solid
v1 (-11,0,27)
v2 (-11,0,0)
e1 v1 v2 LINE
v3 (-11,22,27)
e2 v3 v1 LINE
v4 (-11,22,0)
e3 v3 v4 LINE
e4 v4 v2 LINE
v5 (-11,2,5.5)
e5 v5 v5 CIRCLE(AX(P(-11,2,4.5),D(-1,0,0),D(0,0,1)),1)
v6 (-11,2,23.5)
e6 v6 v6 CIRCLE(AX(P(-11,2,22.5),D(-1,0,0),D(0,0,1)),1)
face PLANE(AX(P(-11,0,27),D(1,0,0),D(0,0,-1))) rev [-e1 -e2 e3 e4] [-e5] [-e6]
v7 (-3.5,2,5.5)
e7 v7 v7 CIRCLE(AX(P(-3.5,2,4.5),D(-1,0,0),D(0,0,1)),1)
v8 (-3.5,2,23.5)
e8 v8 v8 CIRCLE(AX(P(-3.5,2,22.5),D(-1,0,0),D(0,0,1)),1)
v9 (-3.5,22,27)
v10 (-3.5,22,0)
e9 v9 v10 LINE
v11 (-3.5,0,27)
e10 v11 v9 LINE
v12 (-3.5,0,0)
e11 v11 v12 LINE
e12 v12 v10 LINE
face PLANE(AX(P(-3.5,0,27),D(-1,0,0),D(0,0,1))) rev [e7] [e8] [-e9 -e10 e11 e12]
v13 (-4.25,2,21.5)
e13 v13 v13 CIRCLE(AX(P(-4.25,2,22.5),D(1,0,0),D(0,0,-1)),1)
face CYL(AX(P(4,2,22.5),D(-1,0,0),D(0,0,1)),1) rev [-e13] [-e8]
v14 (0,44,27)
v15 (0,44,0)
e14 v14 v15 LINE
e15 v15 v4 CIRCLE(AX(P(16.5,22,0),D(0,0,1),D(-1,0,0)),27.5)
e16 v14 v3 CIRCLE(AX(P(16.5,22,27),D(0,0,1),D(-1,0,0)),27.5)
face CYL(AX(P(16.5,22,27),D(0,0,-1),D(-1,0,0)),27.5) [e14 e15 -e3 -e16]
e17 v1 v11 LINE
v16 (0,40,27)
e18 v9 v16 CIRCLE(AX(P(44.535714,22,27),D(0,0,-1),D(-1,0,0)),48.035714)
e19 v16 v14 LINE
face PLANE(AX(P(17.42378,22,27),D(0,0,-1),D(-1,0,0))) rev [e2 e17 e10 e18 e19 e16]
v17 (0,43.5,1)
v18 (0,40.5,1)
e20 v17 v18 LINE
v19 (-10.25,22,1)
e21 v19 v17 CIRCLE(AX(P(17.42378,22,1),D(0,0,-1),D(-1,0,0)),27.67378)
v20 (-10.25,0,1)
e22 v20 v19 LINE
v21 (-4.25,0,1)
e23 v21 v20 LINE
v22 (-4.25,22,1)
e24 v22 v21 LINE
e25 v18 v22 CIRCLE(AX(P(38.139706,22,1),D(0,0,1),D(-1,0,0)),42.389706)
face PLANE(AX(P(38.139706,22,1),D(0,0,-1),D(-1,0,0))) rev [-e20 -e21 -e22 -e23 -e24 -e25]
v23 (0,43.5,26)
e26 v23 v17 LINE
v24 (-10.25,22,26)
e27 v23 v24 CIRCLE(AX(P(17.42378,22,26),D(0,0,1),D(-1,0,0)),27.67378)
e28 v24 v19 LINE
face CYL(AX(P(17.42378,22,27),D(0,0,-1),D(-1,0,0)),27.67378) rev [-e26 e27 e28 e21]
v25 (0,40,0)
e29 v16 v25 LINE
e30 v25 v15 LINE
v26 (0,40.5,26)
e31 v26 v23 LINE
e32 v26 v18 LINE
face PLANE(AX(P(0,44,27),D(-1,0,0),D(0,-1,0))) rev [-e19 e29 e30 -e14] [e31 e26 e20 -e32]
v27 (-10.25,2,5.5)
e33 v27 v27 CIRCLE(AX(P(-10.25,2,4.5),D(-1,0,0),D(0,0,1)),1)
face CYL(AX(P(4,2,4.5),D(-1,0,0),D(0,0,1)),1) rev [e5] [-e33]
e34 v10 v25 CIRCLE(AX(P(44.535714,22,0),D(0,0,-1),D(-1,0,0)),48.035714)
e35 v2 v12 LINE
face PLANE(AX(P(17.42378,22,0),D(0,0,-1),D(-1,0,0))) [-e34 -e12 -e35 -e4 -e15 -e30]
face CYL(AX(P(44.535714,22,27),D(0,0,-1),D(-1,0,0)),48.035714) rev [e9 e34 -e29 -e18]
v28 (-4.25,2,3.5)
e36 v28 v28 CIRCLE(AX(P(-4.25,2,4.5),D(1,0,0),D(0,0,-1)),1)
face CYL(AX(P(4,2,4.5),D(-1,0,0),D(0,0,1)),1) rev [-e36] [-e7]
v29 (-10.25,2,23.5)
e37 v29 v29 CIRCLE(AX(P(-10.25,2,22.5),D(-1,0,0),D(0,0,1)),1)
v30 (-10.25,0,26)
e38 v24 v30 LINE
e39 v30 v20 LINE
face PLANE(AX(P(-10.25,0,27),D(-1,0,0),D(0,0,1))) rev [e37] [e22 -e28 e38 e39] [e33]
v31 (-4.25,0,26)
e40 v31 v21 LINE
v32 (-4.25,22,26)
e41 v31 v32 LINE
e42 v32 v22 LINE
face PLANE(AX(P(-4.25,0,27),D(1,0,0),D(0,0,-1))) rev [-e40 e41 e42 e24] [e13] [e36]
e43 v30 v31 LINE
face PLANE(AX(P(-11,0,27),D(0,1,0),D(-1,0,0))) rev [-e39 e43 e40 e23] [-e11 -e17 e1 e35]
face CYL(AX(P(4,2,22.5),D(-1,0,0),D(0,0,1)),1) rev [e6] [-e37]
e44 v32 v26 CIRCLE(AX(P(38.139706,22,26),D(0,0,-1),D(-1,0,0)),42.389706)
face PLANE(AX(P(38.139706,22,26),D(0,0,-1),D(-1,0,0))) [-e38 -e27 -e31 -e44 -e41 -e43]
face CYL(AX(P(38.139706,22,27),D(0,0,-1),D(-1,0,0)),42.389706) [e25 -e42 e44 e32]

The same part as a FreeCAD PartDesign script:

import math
import FreeCAD as App
import Part
import Sketcher

doc = App.newDocument("Part")
params = doc.addObject("Spreadsheet::Sheet", "Params")
for row, (alias, value) in enumerate([
    ("sketch1_radius", "27.5 mm"),
    ("sketch1_height", "22 mm"),
    ("sketch1_height2", "0.5 mm"),
    ("sketch1_width", "0.75 mm"),
    ("pad1_length", "27 mm"),
    ("sketch2_height", "22 mm"),
    ("sketch2_height2", "0.5 mm"),
    ("sketch2_width", "0.75 mm"),
    ("pad2_length", "27 mm"),
    ("sketch3_width", "6 mm"),
    ("sketch3_height", "22 mm"),
    ("sketch3_height2", "3 mm"),
    ("pad3_length", "1 mm"),
    ("sketch4_width", "6 mm"),
    ("sketch4_height", "22 mm"),
    ("sketch4_height2", "3 mm"),
    ("pad4_length", "1 mm"),
    ("sketch5_diameter", "2 mm"),
    ("pocket1_length", "15 mm"),
], start=1):
    params.set(f"A{row}", alias)
    params.set(f"B{row}", "=" + value)
    params.setAlias(f"B{row}", alias)

body = doc.addObject("PartDesign::Body", "Body")

sketch1 = body.newObject("Sketcher::SketchObject", "Sketch")
sketch1.AttachmentSupport = (doc.getObject("XY_Plane"), [""])
sketch1.MapMode = "FlatFace"
sketch1.addGeometry([
    Part.LineSegment(App.Vector(-11, 22, 0), App.Vector(-11, 0, 0)),
    Part.LineSegment(App.Vector(-11, 0, 0), App.Vector(-10.2, 0, 0)),
    Part.LineSegment(App.Vector(-10.2, 0, 0), App.Vector(-10.2, 22, 0)),
    Part.ArcOfCircle(Part.Circle(App.Vector(17.4, 22, 0), App.Vector(0, 0, 1), 27.7), math.radians(129), math.radians(180)),
    Part.LineSegment(App.Vector(0, 43.5, 0), App.Vector(0, 44, 0)),
    Part.ArcOfCircle(Part.Circle(App.Vector(16.5, 22, 0), App.Vector(0, 0, 1), 27.5), math.radians(127), math.radians(180)),
], False)
sketch1.addConstraint([
    Sketcher.Constraint("Coincident", 0, 2, 1, 1),
    Sketcher.Constraint("Coincident", 1, 2, 2, 1),
    Sketcher.Constraint("Tangent", 2, 2, 3, 2),
    Sketcher.Constraint("Coincident", 3, 1, 4, 1),
    Sketcher.Constraint("Coincident", 4, 2, 5, 1),
    Sketcher.Constraint("Tangent", 5, 2, 0, 1),
    Sketcher.Constraint("Vertical", 0),
    Sketcher.Constraint("Horizontal", 1),
    Sketcher.Constraint("Vertical", 2),
    Sketcher.Constraint("Vertical", 4),
    Sketcher.Constraint("PointOnObject", 0, 2, -1),
    Sketcher.Constraint("PointOnObject", 3, 1, -2),
    Sketcher.Constraint("Horizontal", 3, 3, 5, 3),
    Sketcher.Constraint("Radius", 5, 27.5),
    Sketcher.Constraint("DistanceY", 0, 2, 0, 1, 22.0),
    Sketcher.Constraint("DistanceY", 4, 1, 4, 2, 0.5),
    Sketcher.Constraint("DistanceX", 0, 2, -1, 1, 11.0),
    Sketcher.Constraint("DistanceX", 1, 1, 1, 2, 0.75),
])
sketch1.setExpression("Constraints[13]", "Params.sketch1_radius")
sketch1.setExpression("Constraints[14]", "Params.sketch1_height")
sketch1.setExpression("Constraints[15]", "Params.sketch1_height2")
sketch1.setExpression("Constraints[17]", "Params.sketch1_width")
pad1 = body.newObject("PartDesign::Pad", "Pad")
pad1.Profile = sketch1
pad1.setExpression("Length", "Params.pad1_length")
body2 = doc.addObject("PartDesign::Body", "Body001")

sketch2 = body2.newObject("Sketcher::SketchObject", "Sketch001")
sketch2.AttachmentSupport = (doc.getObject("XY_Plane001"), [""])
sketch2.MapMode = "FlatFace"
sketch2.addGeometry([
    Part.LineSegment(App.Vector(-3.5, 0, 0), App.Vector(-3.5, 22, 0)),
    Part.ArcOfCircle(Part.Circle(App.Vector(44.5, 22, 0), App.Vector(0, 0, 1), 48), math.radians(158), math.radians(180)),
    Part.LineSegment(App.Vector(0, 40, 0), App.Vector(0, 40.5, 0)),
    Part.ArcOfCircle(Part.Circle(App.Vector(38.1, 22, 0), App.Vector(0, 0, 1), 42.4), math.radians(154), math.radians(180)),
    Part.LineSegment(App.Vector(-4.2, 22, 0), App.Vector(-4.2, 0, 0)),
    Part.LineSegment(App.Vector(-4.2, 0, 0), App.Vector(-3.5, 0, 0)),
], False)
sketch2.addConstraint([
    Sketcher.Constraint("Tangent", 0, 2, 1, 2),
    Sketcher.Constraint("Coincident", 1, 1, 2, 1),
    Sketcher.Constraint("Coincident", 2, 2, 3, 1),
    Sketcher.Constraint("Tangent", 3, 2, 4, 1),
    Sketcher.Constraint("Coincident", 4, 2, 5, 1),
    Sketcher.Constraint("Coincident", 5, 2, 0, 1),
    Sketcher.Constraint("Vertical", 0),
    Sketcher.Constraint("Vertical", 2),
    Sketcher.Constraint("Vertical", 4),
    Sketcher.Constraint("Horizontal", 5),
    Sketcher.Constraint("PointOnObject", 1, 1, -2),
    Sketcher.Constraint("PointOnObject", 4, 2, -1),
    Sketcher.Constraint("Horizontal", 1, 3, 3, 3),
    Sketcher.Constraint("DistanceY", 0, 1, 0, 2, 22.0),
    Sketcher.Constraint("DistanceY", 2, 1, 2, 2, 0.5),
    Sketcher.Constraint("DistanceY", -1, 1, 1, 1, 40.0),
    Sketcher.Constraint("DistanceX", 5, 1, 5, 2, 0.75),
    Sketcher.Constraint("DistanceX", 0, 2, -1, 1, 3.5),
])
sketch2.setExpression("Constraints[13]", "Params.sketch2_height")
sketch2.setExpression("Constraints[14]", "Params.sketch2_height2")
sketch2.setExpression("Constraints[16]", "Params.sketch2_width")
pad2 = body2.newObject("PartDesign::Pad", "Pad001")
pad2.Profile = sketch2
pad2.setExpression("Length", "Params.pad2_length")
body.AllowCompound = True
doc.recompute()

boolean = body.newObject("PartDesign::Boolean", "Boolean")
boolean.Type = "Fuse"
boolean.addObjects([body2])

sketch3 = body.newObject("Sketcher::SketchObject", "Sketch002")
sketch3.AttachmentSupport = (doc.getObject("XY_Plane"), [""])
sketch3.MapMode = "FlatFace"
sketch3.AttachmentOffset = App.Placement(App.Vector(0, 0, 26), App.Rotation())
sketch3.addGeometry([
    Part.LineSegment(App.Vector(-10.2, 0, 0), App.Vector(-4.2, 0, 0)),
    Part.LineSegment(App.Vector(-4.2, 0, 0), App.Vector(-4.2, 22, 0)),
    Part.ArcOfCircle(Part.Circle(App.Vector(38.1, 22, 0), App.Vector(0, 0, 1), 42.4), math.radians(154), math.radians(180)),
    Part.LineSegment(App.Vector(0, 40.5, 0), App.Vector(0, 43.5, 0)),
    Part.ArcOfCircle(Part.Circle(App.Vector(17.4, 22, 0), App.Vector(0, 0, 1), 27.7), math.radians(129), math.radians(180)),
    Part.LineSegment(App.Vector(-10.2, 22, 0), App.Vector(-10.2, 0, 0)),
], False)
sketch3.addConstraint([
    Sketcher.Constraint("Coincident", 0, 2, 1, 1),
    Sketcher.Constraint("Tangent", 1, 2, 2, 2),
    Sketcher.Constraint("Coincident", 2, 1, 3, 1),
    Sketcher.Constraint("Coincident", 3, 2, 4, 1),
    Sketcher.Constraint("Tangent", 4, 2, 5, 1),
    Sketcher.Constraint("Coincident", 5, 2, 0, 1),
    Sketcher.Constraint("Horizontal", 0),
    Sketcher.Constraint("Vertical", 1),
    Sketcher.Constraint("Vertical", 3),
    Sketcher.Constraint("Vertical", 5),
    Sketcher.Constraint("PointOnObject", 0, 2, -1),
    Sketcher.Constraint("PointOnObject", 2, 1, -2),
    Sketcher.Constraint("Horizontal", 2, 3, 4, 3),
    Sketcher.Constraint("DistanceX", 0, 1, 0, 2, 6.0),
    Sketcher.Constraint("DistanceY", 1, 1, 1, 2, 22.0),
    Sketcher.Constraint("DistanceY", 3, 1, 3, 2, 3.0),
    Sketcher.Constraint("DistanceY", -1, 1, 2, 1, 40.5),
    Sketcher.Constraint("DistanceX", 0, 2, -1, 1, 4.25),
])
sketch3.setExpression("Constraints[13]", "Params.sketch3_width")
sketch3.setExpression("Constraints[14]", "Params.sketch3_height")
sketch3.setExpression("Constraints[15]", "Params.sketch3_height2")
pad3 = body.newObject("PartDesign::Pad", "Pad002")
pad3.Profile = sketch3
pad3.setExpression("Length", "Params.pad3_length")

sketch4 = body.newObject("Sketcher::SketchObject", "Sketch003")
sketch4.AttachmentSupport = (doc.getObject("XY_Plane"), [""])
sketch4.MapMode = "FlatFace"
sketch4.addGeometry([
    Part.LineSegment(App.Vector(-4.2, 0, 0), App.Vector(-10.2, 0, 0)),
    Part.LineSegment(App.Vector(-10.2, 0, 0), App.Vector(-10.2, 22, 0)),
    Part.ArcOfCircle(Part.Circle(App.Vector(17.4, 22, 0), App.Vector(0, 0, 1), 27.7), math.radians(129), math.radians(180)),
    Part.LineSegment(App.Vector(0, 43.5, 0), App.Vector(0, 40.5, 0)),
    Part.ArcOfCircle(Part.Circle(App.Vector(38.1, 22, 0), App.Vector(0, 0, 1), 42.4), math.radians(154), math.radians(180)),
    Part.LineSegment(App.Vector(-4.2, 22, 0), App.Vector(-4.2, 0, 0)),
], False)
sketch4.addConstraint([
    Sketcher.Constraint("Coincident", 0, 2, 1, 1),
    Sketcher.Constraint("Tangent", 1, 2, 2, 2),
    Sketcher.Constraint("Coincident", 2, 1, 3, 1),
    Sketcher.Constraint("Coincident", 3, 2, 4, 1),
    Sketcher.Constraint("Tangent", 4, 2, 5, 1),
    Sketcher.Constraint("Coincident", 5, 2, 0, 1),
    Sketcher.Constraint("Horizontal", 0),
    Sketcher.Constraint("Vertical", 1),
    Sketcher.Constraint("Vertical", 3),
    Sketcher.Constraint("Vertical", 5),
    Sketcher.Constraint("PointOnObject", 0, 2, -1),
    Sketcher.Constraint("PointOnObject", 2, 1, -2),
    Sketcher.Constraint("Horizontal", 2, 3, 4, 3),
    Sketcher.Constraint("DistanceX", 0, 2, 0, 1, 6.0),
    Sketcher.Constraint("DistanceY", 1, 1, 1, 2, 22.0),
    Sketcher.Constraint("DistanceY", 3, 2, 3, 1, 3.0),
    Sketcher.Constraint("DistanceY", -1, 1, 2, 1, 43.5),
    Sketcher.Constraint("DistanceX", 0, 2, -1, 1, 10.25),
])
sketch4.setExpression("Constraints[13]", "Params.sketch4_width")
sketch4.setExpression("Constraints[14]", "Params.sketch4_height")
sketch4.setExpression("Constraints[15]", "Params.sketch4_height2")
pad4 = body.newObject("PartDesign::Pad", "Pad003")
pad4.Profile = sketch4
pad4.setExpression("Length", "Params.pad4_length")

sketch5 = body.newObject("Sketcher::SketchObject", "Sketch004")
sketch5.AttachmentSupport = (doc.getObject("YZ_Plane"), [""])
sketch5.MapMode = "FlatFace"
sketch5.AttachmentOffset = App.Placement(App.Vector(0, 0, -11), App.Rotation())
sketch5.addGeometry([
    Part.Circle(App.Vector(2, 4.5, 0), App.Vector(0, 0, 1), 1),
    Part.Circle(App.Vector(2, 22.5, 0), App.Vector(0, 0, 1), 1),
], False)
sketch5.addConstraint([
    Sketcher.Constraint("Equal", 0, 1),
    Sketcher.Constraint("Vertical", 0, 3, 1, 3),
    Sketcher.Constraint("Diameter", 0, 2.0),
    Sketcher.Constraint("DistanceX", -1, 1, 0, 3, 2.0),
    Sketcher.Constraint("DistanceY", 0, 3, 1, 3, 18.0),
    Sketcher.Constraint("DistanceY", -1, 1, 0, 3, 4.5),
])
sketch5.setExpression("Constraints[2]", "Params.sketch5_diameter")
pocket1 = body.newObject("PartDesign::Pocket", "Pocket")
pocket1.Profile = sketch5
pocket1.setExpression("Length", "Params.pocket1_length")
pocket1.Reversed = True

doc.recompute()
